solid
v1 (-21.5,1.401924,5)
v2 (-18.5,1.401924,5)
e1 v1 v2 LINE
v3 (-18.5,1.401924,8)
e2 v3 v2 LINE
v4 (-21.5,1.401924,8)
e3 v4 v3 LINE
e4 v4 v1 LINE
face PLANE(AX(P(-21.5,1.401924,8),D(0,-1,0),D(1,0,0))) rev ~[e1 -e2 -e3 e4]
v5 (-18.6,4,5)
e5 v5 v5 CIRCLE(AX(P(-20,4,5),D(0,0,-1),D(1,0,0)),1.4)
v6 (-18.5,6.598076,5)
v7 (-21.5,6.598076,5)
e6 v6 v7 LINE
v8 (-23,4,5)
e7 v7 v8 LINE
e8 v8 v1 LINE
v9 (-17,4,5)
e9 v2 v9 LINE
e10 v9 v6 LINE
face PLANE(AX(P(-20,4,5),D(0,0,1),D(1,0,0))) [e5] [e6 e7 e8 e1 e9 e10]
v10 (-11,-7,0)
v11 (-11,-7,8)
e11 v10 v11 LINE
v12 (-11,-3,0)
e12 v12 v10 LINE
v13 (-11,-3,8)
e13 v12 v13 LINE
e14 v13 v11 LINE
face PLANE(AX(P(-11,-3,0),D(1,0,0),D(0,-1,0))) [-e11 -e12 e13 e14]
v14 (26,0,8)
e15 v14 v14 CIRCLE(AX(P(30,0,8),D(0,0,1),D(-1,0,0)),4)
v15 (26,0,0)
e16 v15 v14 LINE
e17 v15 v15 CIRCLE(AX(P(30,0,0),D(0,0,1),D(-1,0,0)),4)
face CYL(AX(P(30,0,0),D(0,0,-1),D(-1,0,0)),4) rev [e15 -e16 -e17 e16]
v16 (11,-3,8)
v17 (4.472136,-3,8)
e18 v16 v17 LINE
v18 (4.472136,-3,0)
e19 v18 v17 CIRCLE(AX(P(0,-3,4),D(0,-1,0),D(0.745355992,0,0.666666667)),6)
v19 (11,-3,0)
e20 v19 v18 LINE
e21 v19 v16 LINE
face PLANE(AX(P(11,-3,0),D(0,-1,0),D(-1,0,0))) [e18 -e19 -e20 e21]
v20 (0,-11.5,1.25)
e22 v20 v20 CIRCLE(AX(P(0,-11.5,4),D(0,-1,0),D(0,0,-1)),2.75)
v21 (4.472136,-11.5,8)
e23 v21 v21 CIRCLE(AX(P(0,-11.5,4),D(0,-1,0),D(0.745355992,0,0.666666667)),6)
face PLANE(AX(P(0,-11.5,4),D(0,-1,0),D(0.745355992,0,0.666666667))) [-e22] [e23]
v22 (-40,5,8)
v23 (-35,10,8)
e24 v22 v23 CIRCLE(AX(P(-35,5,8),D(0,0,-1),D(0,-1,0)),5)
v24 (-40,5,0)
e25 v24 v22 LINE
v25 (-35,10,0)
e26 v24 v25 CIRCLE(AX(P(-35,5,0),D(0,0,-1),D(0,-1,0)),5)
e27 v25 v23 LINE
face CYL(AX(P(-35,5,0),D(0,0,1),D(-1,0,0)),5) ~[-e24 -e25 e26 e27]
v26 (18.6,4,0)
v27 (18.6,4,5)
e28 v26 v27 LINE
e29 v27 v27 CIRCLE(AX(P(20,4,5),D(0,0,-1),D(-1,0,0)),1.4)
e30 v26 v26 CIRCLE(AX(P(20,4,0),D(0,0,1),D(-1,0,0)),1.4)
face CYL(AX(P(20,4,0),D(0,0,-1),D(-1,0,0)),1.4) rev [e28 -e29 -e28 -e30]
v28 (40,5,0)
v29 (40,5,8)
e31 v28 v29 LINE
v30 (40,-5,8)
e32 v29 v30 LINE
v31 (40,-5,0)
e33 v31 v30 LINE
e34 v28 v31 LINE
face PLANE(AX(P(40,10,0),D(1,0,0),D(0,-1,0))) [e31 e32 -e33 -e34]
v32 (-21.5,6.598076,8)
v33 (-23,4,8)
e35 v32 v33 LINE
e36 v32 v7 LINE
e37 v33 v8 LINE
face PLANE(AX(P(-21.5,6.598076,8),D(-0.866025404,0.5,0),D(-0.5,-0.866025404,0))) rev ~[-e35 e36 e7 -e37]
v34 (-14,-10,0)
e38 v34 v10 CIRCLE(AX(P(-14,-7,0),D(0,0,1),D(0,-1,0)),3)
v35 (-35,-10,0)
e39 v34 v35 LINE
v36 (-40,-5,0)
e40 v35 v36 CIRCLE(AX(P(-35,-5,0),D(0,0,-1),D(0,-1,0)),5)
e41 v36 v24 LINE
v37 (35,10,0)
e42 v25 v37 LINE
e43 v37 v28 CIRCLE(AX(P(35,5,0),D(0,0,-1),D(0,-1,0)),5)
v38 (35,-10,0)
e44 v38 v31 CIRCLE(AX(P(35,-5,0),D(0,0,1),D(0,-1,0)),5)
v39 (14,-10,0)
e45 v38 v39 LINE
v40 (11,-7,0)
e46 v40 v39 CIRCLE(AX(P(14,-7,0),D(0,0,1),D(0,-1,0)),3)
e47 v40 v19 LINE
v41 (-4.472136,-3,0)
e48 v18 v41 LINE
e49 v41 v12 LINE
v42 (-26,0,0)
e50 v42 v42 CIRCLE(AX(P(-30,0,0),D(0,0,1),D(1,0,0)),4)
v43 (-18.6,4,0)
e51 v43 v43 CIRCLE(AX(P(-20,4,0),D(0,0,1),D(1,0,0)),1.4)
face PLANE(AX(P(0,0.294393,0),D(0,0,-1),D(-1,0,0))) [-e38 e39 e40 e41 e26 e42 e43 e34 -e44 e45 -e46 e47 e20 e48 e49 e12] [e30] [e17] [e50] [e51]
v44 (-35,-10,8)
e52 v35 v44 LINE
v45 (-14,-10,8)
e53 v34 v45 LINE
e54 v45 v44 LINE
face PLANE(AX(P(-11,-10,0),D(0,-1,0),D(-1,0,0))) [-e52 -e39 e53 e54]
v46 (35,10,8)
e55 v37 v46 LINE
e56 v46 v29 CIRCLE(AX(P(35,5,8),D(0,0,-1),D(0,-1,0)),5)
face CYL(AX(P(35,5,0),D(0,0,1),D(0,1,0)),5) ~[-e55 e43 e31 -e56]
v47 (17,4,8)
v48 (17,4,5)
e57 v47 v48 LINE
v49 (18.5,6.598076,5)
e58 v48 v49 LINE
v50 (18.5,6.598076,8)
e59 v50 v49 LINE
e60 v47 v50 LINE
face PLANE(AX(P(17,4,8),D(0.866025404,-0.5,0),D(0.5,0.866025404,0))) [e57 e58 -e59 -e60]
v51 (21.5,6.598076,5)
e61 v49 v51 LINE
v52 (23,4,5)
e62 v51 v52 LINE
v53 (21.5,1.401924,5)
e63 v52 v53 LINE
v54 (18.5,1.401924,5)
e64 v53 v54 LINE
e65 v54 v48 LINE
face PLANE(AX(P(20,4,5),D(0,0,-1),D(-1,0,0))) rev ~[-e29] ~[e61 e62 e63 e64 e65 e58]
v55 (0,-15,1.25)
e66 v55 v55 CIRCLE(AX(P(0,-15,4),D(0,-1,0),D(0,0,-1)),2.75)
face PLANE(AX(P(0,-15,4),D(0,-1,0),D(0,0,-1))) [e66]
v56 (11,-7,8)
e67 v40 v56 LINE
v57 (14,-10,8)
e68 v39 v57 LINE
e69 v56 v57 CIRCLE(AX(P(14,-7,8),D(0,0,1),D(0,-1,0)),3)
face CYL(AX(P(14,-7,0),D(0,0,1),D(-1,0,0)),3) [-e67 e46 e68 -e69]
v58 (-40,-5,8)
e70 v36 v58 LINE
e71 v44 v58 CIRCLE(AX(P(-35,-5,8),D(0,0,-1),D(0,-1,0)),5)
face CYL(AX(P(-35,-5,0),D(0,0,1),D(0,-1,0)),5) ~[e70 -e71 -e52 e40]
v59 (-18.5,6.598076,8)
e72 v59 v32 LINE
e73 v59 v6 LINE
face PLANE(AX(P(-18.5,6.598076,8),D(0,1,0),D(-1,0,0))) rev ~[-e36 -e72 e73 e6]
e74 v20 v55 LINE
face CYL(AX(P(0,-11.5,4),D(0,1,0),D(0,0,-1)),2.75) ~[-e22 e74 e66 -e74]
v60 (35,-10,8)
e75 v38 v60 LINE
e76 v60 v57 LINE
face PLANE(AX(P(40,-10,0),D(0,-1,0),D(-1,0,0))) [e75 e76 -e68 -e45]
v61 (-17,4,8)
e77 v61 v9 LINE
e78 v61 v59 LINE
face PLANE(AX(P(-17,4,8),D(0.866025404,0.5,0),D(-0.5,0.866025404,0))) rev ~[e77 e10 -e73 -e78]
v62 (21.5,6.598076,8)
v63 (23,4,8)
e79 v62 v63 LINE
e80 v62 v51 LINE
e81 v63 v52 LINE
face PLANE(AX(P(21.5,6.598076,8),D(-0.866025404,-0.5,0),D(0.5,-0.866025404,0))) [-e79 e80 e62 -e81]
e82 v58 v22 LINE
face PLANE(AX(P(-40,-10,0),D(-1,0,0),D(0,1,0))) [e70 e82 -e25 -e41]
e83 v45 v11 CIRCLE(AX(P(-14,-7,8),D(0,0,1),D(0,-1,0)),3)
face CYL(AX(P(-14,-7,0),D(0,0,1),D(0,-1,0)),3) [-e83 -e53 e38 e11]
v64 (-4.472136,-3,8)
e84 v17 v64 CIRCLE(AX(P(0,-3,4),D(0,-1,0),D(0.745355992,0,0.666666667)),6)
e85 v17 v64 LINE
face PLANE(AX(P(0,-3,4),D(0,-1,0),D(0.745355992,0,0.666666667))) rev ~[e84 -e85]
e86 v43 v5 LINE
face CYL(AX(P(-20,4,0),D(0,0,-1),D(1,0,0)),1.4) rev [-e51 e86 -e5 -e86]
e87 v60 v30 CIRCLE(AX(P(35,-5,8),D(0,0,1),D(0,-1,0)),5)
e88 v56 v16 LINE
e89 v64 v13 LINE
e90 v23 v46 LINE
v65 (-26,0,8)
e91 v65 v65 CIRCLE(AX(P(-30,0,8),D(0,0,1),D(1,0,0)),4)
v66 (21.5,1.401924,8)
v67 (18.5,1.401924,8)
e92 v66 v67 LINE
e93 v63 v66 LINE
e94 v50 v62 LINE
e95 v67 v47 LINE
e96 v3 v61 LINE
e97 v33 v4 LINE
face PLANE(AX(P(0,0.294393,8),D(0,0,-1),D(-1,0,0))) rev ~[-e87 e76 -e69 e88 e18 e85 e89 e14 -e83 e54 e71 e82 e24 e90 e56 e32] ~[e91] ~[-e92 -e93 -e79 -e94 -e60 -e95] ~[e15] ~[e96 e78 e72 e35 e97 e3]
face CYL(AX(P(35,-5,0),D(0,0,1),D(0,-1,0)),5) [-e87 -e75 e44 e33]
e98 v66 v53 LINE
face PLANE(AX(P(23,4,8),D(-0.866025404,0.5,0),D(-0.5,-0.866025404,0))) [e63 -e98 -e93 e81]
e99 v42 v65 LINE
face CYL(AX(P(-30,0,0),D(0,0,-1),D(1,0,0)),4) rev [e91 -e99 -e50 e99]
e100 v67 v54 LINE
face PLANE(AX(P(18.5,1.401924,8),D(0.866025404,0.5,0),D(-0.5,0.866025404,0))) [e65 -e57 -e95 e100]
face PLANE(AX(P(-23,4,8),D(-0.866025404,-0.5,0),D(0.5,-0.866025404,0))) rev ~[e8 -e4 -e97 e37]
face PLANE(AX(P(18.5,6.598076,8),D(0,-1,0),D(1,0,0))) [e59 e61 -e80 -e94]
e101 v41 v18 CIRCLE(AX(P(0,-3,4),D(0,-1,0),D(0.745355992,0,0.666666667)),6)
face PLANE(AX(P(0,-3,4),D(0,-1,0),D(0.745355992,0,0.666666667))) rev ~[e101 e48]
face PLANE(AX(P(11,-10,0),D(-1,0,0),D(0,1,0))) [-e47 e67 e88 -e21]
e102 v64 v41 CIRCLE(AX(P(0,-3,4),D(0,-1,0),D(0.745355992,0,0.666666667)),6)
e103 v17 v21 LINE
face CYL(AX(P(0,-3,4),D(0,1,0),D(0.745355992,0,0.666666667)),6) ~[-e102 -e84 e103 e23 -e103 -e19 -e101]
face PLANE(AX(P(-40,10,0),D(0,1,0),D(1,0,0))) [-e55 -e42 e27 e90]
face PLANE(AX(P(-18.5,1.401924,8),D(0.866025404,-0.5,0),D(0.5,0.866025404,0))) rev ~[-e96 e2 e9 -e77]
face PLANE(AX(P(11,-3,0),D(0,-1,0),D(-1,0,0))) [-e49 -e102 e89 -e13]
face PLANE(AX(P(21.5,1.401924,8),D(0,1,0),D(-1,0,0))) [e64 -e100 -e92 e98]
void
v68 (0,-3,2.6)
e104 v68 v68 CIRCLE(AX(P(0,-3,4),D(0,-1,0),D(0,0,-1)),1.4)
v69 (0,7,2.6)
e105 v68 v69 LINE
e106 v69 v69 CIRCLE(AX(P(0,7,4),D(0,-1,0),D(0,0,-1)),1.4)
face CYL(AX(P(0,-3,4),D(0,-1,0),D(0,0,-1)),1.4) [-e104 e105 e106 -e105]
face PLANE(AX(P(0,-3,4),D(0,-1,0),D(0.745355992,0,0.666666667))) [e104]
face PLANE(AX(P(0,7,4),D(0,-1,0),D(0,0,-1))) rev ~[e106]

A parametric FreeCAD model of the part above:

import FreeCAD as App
import Part
import Sketcher
from FreeCAD import Vector
Q = App.Units.Quantity


def edges_at(feature, points):
    """Names of the edges that pass closest to the given points."""
    edges = feature.Shape.Edges
    near = lambda p: min(range(len(edges)), key=lambda i: edges[i].distToShape(Part.Vertex(*p))[0])
    return sorted({f"Edge{near(p) + 1}" for p in points})


def add_polygon(sketch, points):
    """Adds a closed chain of lines whose ends are joined by coincident constraints."""
    first, n = sketch.GeometryCount, len(points)
    for a, b in zip(points, points[1:] + points[:1]):
        sketch.addGeometry(Part.LineSegment(App.Vector(*a, 0), App.Vector(*b, 0)), False)
    for i in range(n):
        sketch.addConstraint(Sketcher.Constraint("Coincident", first + i, 2, first + (i + 1) % n, 1))

doc = App.newDocument("Part")
body = doc.addObject("PartDesign::Body", "Body")

# Sketch on XY plane
sketch1 = body.newObject("Sketcher::SketchObject", "Sketch")
sketch1.AttachmentSupport = (doc.getObject("XY_Plane"), [""])
sketch1.MapMode = "FlatFace"
add_polygon(sketch1, [(-11, -10), (-11, -3), (11, -3), (11, -10), (40, -10), (40, 10), (-40, 10), (-40, -10)])  # lines 0-7
sketch1.addGeometry(Part.Circle(Vector(30, 0, 0), Vector(0, 0, 1), 4), False)  # 8
sketch1.addGeometry(Part.Circle(Vector(-30, 0, 0), Vector(0, 0, 1), 4), False)  # 9
sketch1.addGeometry(Part.Circle(Vector(20, 4, 0), Vector(0, 0, 1), 1.4), False)  # 10
sketch1.addGeometry(Part.Circle(Vector(-20, 4, 0), Vector(0, 0, 1), 1.4), False)  # 11
sketch1.addConstraint([
    Sketcher.Constraint("Vertical", 0),
    Sketcher.Constraint("Horizontal", 1),
    Sketcher.Constraint("Vertical", 2),
    Sketcher.Constraint("Horizontal", 3),
    Sketcher.Constraint("Vertical", 4),
    Sketcher.Constraint("Horizontal", 5),
    Sketcher.Constraint("Vertical", 6),
    Sketcher.Constraint("Horizontal", 7),
    Sketcher.Constraint("Equal", 8, 9),
    Sketcher.Constraint("Equal", 10, 11),
    Sketcher.Constraint("Symmetric", 8, 3, 9, 3, -1, 1),
    Sketcher.Constraint("Symmetric", 3, 2, 5, 2, -1, 1),
    Sketcher.Constraint("Symmetric", 10, 3, 11, 3, -2),
    Sketcher.Constraint("Symmetric", 2, 2, 7, 2, -2),
    Sketcher.Constraint("PointOnObject", 8, 3, -1),
    Sketcher.Constraint("Diameter", 8, Q("8 mm")),
    Sketcher.Constraint("Diameter", 10, Q("2.8 mm")),
    Sketcher.Constraint("DistanceX", 1, 1, 1, 2, Q("22 mm")),
    Sketcher.Constraint("DistanceX", 3, 1, 3, 2, Q("29 mm")),
    Sketcher.Constraint("DistanceY", 0, 1, 0, 2, Q("7 mm")),
    Sketcher.Constraint("DistanceY", 4, 1, 4, 2, Q("20 mm")),
    Sketcher.Constraint("DistanceX", -1, 1, 8, 3, Q("30 mm")),
    Sketcher.Constraint("DistanceX", -1, 1, 10, 3, Q("20 mm")),
    Sketcher.Constraint("DistanceY", -1, 1, 10, 3, Q("4 mm")),
])
pad1 = body.newObject("PartDesign::Pad", "Pad")
pad1.Profile = sketch1
pad1.Length = 8
doc.recompute()

fillet = body.newObject("PartDesign::Fillet", "Fillet")
fillet.Base = (pad1, edges_at(pad1, [
    (-40, -10, 4),
    (-40, 10, 4),
    (40, 10, 4),
    (40, -10, 4),
]))
fillet.Radius = 5
doc.recompute()

fillet2 = body.newObject("PartDesign::Fillet", "Fillet001")
fillet2.Base = (fillet, edges_at(fillet, [(-11, -10, 4), (11, -10, 4)]))
fillet2.Radius = 3

# Sketch on XY plane
sketch2 = body.newObject("Sketcher::SketchObject", "Sketch001")
sketch2.AttachmentSupport = (doc.getObject("XY_Plane"), [""])
sketch2.MapMode = "FlatFace"
sketch2.AttachmentOffset = App.Placement(Vector(0, 0, 8), App.Rotation())
add_polygon(sketch2, [(-17, 4), (-18.5, 6.598076), (-21.5, 6.598076), (-23, 4), (-21.5, 1.401924), (-18.5, 1.401924)])  # lines 0-5
add_polygon(sketch2, [(17, 4), (18.5, 1.401924), (21.5, 1.401924), (23, 4), (21.5, 6.598076), (18.5, 6.598076)])  # lines 6-11
sketch2.addConstraint([
    Sketcher.Constraint("Horizontal", 1),
    Sketcher.Constraint("Horizontal", 4),
    Sketcher.Constraint("Horizontal", 7),
    Sketcher.Constraint("Horizontal", 10),
    Sketcher.Constraint("Symmetric", 4, 2, 6, 2, -2),
    Sketcher.Constraint("Symmetric", 2, 2, 8, 2, -2),
    Sketcher.Constraint("Symmetric", 1, 2, 9, 2, -2),
    Sketcher.Constraint("Symmetric", 5, 2, 11, 2, -2),
    Sketcher.Constraint("Parallel", 0, 3),
    Sketcher.Constraint("Parallel", 2, 5),
    Sketcher.Constraint("Parallel", 3, 6),
    Sketcher.Constraint("Parallel", 5, 8),
    Sketcher.Constraint("Parallel", 8, 11),
    Sketcher.Constraint("Horizontal", 2, 2, 5, 2),
    Sketcher.Constraint("Vertical", 1, 2, 3, 2),
    Sketcher.Constraint("DistanceX", 1, 2, 1, 1, Q("3 mm")),
    Sketcher.Constraint("Angle", 0, Q("120 deg")),
    Sketcher.Constraint("Distance", 0, Q("3 mm")),
    Sketcher.Constraint("DistanceX", 2, 2, -1, 1, Q("23 mm")),
    Sketcher.Constraint("DistanceY", -1, 1, 2, 2, Q("4 mm")),
])
pocket1 = body.newObject("PartDesign::Pocket", "Pocket")
pocket1.Profile = sketch2
pocket1.Length = 3

# Sketch on XZ plane
sketch3 = body.newObject("Sketcher::SketchObject", "Sketch002")
sketch3.AttachmentSupport = (doc.getObject("XZ_Plane"), [""])
sketch3.MapMode = "FlatFace"
sketch3.AttachmentOffset = App.Placement(Vector(0, 0, 3), App.Rotation())
sketch3.addGeometry(Part.Circle(Vector(0, 4, 0), Vector(0, 0, 1), 1.4), False)
sketch3.addConstraint([
    Sketcher.Constraint("PointOnObject", 0, 3, -2),
    Sketcher.Constraint("Diameter", 0, Q("2.8 mm")),
    Sketcher.Constraint("DistanceY", -1, 1, 0, 3, Q("4 mm")),
])
pocket2 = body.newObject("PartDesign::Pocket", "Pocket001")
pocket2.Profile = sketch3
pocket2.Length = 10

# Sketch on XZ plane
sketch4 = body.newObject("Sketcher::SketchObject", "Sketch003")
sketch4.AttachmentSupport = (doc.getObject("XZ_Plane"), [""])
sketch4.MapMode = "FlatFace"
sketch4.AttachmentOffset = App.Placement(Vector(0, 0, 3), App.Rotation())
sketch4.addGeometry(Part.Circle(Vector(0, 4, 0), Vector(0, 0, 1), 6), False)
sketch4.addConstraint([
    Sketcher.Constraint("PointOnObject", 0, 3, -2),
    Sketcher.Constraint("Diameter", 0, Q("12 mm")),
    Sketcher.Constraint("DistanceY", -1, 1, 0, 3, Q("4 mm")),
])
pad2 = body.newObject("PartDesign::Pad", "Pad001")
pad2.Profile = sketch4
pad2.Length = 8.5

# Sketch on XZ plane
sketch5 = body.newObject("Sketcher::SketchObject", "Sketch004")
sketch5.AttachmentSupport = (doc.getObject("XZ_Plane"), [""])
sketch5.MapMode = "FlatFace"
sketch5.AttachmentOffset = App.Placement(Vector(0, 0, 11.5), App.Rotation())
sketch5.addGeometry(Part.Circle(Vector(0, 4, 0), Vector(0, 0, 1), 2.75), False)
sketch5.addConstraint([
    Sketcher.Constraint("PointOnObject", 0, 3, -2),
    Sketcher.Constraint("Diameter", 0, Q("5.5 mm")),
    Sketcher.Constraint("DistanceY", -1, 1, 0, 3, Q("4 mm")),
])
pad3 = body.newObject("PartDesign::Pad", "Pad002")
pad3.Profile = sketch5
pad3.Length = 3.5

doc.recompute()
